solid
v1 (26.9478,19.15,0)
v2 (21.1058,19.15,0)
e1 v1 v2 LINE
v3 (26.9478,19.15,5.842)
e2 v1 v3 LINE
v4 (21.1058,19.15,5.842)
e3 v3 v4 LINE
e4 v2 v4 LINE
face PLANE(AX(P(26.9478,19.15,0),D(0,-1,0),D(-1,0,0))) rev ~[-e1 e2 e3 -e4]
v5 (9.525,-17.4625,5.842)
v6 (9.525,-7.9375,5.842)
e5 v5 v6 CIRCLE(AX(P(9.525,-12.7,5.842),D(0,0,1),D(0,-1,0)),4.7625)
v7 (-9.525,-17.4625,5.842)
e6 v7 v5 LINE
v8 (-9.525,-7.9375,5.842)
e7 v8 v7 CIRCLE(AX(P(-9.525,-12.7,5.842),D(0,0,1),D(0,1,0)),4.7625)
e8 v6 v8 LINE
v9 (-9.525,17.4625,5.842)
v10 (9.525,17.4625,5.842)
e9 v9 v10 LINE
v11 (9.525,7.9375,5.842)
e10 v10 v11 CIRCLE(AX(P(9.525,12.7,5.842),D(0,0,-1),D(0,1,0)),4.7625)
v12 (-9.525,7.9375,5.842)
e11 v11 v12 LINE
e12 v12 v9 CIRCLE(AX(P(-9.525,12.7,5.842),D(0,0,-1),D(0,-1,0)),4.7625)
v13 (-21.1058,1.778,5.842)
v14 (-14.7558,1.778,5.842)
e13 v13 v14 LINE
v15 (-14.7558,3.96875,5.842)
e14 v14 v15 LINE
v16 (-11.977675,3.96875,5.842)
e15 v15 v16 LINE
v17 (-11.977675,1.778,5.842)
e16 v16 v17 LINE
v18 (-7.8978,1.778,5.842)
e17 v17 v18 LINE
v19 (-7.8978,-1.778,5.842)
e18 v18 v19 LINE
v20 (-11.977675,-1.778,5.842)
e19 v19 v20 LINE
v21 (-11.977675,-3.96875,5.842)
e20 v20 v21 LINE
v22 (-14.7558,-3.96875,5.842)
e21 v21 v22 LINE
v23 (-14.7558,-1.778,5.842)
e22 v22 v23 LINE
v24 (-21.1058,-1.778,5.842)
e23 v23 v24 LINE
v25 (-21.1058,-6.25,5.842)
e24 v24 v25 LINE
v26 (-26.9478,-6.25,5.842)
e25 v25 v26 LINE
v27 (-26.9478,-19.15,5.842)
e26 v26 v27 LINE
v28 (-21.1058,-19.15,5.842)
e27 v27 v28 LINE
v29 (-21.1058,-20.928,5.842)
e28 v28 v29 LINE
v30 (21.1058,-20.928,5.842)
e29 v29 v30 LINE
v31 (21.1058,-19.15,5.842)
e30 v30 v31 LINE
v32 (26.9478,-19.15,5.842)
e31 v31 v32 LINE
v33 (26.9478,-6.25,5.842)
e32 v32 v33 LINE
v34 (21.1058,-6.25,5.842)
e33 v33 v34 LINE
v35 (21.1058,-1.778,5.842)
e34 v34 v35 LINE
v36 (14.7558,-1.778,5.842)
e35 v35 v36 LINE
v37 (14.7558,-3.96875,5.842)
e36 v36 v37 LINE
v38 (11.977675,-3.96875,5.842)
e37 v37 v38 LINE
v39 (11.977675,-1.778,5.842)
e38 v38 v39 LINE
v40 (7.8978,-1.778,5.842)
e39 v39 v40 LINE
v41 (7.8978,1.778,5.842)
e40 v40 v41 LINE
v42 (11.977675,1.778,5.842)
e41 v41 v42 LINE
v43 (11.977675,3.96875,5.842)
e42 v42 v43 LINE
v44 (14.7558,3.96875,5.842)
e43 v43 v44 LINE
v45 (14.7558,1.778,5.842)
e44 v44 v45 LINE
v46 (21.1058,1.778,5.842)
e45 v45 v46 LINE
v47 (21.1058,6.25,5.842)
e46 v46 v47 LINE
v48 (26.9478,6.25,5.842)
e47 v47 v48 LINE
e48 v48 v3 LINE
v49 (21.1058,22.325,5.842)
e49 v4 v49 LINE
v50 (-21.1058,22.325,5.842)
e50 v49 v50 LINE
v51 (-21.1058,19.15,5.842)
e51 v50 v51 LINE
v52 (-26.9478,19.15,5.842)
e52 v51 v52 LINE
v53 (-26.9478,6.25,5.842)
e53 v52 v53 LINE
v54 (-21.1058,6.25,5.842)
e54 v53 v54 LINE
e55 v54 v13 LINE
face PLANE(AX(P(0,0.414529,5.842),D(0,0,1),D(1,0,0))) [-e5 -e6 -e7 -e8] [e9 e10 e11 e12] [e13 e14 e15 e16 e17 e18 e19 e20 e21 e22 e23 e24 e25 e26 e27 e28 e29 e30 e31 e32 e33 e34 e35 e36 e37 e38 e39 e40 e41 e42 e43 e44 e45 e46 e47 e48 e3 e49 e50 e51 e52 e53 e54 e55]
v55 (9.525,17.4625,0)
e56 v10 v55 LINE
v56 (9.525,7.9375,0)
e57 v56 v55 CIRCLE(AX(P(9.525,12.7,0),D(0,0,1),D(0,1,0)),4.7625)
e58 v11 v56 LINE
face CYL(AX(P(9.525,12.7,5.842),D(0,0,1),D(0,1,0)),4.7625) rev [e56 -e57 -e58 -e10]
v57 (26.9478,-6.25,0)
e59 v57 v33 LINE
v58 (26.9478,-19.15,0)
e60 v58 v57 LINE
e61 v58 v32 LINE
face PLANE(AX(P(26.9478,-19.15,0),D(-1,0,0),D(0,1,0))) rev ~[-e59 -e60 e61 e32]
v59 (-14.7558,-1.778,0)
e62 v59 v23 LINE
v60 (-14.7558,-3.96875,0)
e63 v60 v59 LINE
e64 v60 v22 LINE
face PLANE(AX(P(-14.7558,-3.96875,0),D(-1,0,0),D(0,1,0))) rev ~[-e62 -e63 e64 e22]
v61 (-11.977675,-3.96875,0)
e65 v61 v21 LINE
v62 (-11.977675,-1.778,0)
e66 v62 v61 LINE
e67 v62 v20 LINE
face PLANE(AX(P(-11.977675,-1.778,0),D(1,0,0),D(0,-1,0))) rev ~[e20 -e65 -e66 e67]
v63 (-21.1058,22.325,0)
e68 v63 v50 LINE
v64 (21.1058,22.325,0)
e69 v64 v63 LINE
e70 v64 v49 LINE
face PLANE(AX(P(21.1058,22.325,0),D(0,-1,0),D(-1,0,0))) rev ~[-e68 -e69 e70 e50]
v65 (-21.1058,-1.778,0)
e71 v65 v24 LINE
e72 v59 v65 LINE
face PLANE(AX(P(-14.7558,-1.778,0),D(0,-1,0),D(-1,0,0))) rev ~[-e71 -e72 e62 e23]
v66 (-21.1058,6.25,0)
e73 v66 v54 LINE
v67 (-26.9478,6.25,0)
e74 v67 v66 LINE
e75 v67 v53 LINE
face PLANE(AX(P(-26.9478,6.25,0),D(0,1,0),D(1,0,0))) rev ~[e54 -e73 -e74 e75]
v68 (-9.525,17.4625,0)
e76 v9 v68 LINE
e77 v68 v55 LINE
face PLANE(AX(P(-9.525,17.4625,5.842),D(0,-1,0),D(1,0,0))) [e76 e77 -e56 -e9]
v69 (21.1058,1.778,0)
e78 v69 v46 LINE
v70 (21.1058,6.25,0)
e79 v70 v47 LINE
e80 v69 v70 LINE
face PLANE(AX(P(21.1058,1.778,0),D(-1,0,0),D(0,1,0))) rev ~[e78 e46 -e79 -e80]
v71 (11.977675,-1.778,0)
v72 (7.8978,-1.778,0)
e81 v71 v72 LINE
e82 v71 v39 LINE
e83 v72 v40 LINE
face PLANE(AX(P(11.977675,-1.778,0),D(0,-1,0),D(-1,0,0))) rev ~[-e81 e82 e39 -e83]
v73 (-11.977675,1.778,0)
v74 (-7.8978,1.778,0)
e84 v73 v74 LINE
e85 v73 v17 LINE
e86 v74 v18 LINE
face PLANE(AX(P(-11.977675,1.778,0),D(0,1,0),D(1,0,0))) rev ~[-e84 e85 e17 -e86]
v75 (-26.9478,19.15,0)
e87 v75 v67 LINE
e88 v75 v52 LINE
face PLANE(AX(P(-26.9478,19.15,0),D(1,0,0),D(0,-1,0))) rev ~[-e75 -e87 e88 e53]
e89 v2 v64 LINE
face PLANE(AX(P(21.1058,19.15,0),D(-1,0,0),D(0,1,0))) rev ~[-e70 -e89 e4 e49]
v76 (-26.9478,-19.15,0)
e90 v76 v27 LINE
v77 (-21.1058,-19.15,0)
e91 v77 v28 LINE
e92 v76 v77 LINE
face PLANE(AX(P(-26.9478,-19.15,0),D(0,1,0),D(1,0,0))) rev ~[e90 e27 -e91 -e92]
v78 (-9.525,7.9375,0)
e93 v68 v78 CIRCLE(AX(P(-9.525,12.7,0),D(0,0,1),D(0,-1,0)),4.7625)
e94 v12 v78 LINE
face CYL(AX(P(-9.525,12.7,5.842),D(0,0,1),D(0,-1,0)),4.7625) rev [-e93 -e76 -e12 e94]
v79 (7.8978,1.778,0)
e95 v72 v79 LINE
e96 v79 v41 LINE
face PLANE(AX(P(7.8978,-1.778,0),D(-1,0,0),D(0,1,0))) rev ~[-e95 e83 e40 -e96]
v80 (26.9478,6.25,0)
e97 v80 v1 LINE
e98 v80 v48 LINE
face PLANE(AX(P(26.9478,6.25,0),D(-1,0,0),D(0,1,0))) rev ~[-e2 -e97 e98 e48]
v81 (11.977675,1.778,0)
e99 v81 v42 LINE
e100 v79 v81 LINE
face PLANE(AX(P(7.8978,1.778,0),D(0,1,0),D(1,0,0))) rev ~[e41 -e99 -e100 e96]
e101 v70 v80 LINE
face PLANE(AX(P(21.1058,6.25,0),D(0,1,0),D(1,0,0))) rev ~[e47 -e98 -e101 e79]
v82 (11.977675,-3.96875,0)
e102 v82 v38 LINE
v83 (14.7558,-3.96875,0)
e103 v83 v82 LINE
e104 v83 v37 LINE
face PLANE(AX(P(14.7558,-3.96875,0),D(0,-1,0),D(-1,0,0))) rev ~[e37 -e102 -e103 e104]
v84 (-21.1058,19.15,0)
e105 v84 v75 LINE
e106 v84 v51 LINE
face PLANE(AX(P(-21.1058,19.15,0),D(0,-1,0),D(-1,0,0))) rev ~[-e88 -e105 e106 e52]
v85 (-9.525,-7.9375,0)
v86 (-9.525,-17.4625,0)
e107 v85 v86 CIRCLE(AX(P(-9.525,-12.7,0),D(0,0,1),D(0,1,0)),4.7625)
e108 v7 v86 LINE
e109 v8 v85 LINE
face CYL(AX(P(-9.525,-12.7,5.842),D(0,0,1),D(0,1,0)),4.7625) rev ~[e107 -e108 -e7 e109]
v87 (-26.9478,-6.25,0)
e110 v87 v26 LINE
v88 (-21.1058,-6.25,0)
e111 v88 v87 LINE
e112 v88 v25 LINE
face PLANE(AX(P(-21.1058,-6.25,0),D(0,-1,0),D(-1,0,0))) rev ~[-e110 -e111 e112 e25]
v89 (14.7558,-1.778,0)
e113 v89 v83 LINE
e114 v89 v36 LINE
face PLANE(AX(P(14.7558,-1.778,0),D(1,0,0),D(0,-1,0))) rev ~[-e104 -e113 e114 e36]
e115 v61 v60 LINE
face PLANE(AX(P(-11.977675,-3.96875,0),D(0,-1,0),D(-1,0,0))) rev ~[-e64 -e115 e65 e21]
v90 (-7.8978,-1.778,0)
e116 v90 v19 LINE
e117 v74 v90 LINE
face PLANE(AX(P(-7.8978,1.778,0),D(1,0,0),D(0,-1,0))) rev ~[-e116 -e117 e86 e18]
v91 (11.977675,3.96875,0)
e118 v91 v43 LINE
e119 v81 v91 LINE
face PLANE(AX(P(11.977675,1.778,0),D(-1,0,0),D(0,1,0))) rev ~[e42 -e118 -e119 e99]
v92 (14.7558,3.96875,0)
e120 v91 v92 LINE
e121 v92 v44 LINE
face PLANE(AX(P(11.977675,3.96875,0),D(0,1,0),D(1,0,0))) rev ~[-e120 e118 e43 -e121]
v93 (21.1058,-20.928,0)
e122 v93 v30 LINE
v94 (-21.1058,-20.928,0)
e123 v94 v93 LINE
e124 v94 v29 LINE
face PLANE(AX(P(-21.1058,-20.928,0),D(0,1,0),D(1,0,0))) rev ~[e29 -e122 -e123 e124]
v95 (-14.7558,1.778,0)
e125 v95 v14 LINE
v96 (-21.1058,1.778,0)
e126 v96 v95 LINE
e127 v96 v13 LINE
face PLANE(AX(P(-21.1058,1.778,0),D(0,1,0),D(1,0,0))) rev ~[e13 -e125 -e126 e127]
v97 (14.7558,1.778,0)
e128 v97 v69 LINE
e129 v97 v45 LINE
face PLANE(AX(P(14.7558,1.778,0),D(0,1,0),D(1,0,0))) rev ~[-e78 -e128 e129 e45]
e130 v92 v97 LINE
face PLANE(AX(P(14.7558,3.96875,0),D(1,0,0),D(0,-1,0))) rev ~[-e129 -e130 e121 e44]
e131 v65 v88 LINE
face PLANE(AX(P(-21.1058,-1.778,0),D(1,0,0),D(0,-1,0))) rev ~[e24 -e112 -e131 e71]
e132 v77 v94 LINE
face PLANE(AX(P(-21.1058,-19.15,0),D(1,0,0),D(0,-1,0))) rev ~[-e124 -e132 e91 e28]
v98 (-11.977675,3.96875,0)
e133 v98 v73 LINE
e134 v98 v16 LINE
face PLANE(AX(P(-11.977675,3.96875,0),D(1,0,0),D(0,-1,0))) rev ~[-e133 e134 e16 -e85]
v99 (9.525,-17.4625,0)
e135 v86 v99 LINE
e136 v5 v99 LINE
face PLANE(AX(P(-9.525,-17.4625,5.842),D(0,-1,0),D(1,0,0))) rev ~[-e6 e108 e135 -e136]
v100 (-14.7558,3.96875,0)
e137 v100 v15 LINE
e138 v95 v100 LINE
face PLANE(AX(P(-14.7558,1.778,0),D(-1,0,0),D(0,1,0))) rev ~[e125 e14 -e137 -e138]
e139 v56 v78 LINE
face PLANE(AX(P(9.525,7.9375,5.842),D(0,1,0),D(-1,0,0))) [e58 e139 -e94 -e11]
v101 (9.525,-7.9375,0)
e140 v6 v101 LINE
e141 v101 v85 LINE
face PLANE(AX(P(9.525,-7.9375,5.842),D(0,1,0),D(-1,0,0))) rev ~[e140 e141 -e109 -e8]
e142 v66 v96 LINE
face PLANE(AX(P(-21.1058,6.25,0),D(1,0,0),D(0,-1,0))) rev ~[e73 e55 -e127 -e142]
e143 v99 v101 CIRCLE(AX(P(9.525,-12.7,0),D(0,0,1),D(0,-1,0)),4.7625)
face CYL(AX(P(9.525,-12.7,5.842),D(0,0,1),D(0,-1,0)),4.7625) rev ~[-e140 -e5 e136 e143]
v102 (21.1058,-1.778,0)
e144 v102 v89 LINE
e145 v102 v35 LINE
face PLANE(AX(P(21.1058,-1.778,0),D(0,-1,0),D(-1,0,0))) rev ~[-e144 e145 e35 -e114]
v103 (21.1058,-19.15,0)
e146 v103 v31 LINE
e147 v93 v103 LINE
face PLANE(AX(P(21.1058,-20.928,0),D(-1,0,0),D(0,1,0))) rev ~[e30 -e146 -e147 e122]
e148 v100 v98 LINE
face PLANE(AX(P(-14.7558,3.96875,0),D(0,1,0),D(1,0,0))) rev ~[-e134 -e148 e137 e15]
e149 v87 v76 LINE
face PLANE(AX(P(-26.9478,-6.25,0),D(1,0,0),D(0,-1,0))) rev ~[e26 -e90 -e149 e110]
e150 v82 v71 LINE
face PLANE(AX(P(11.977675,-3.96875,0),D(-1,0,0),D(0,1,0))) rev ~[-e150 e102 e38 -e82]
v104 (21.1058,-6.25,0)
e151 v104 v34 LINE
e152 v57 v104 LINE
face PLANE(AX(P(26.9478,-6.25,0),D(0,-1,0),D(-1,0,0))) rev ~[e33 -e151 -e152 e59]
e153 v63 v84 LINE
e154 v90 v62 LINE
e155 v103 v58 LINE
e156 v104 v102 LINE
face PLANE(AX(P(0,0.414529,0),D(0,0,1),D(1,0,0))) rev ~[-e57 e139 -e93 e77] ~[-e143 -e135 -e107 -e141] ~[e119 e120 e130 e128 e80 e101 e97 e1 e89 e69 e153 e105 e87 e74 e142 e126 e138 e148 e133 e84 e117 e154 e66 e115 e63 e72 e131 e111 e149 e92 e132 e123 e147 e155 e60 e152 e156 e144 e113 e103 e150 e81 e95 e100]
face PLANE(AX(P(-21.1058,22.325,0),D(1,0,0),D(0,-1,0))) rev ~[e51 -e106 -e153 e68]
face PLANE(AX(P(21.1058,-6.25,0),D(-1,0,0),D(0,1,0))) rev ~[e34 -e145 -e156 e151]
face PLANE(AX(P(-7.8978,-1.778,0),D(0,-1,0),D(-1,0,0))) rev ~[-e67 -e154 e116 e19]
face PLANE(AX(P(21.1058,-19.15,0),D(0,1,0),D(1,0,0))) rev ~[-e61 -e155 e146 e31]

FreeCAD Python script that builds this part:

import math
import FreeCAD as App
import Part
import Sketcher

V = App.Vector
Q = App.Units.Quantity


def add_polygon(sketch, points):
    """Adds a closed chain of lines whose ends are joined by coincident constraints."""
    first, n = sketch.GeometryCount, len(points)
    for a, b in zip(points, points[1:] + points[:1]):
        sketch.addGeometry(Part.LineSegment(App.Vector(*a, 0), App.Vector(*b, 0)), False)
    for i in range(n):
        sketch.addConstraint(Sketcher.Constraint("Coincident", first + i, 2, first + (i + 1) % n, 1))

doc = App.newDocument("Part")
body = doc.addObject("PartDesign::Body", "Body")

sketch1 = doc.addObject("Sketcher::SketchObject", "Sketch")
body.addObject(sketch1)
sketch1.AttachmentSupport = (doc.XY_Plane, [""])
sketch1.MapMode = "FlatFace"
add_polygon(sketch1, [(21.1, -20.9), (21.1, -19.1), (26.9, -19.1), (26.9, -6.2), (21.1, -6.2), (21.1, -1.8), (14.8, -1.8), (14.8, -4), (12, -4), (12, -1.8), (7.9, -1.8), (7.9, 1.8), (12, 1.8), (12, 4), (14.8, 4), (14.8, 1.8), (21.1, 1.8), (21.1, 6.2), (26.9, 6.2), (26.9, 19.1), (21.1, 19.1), (21.1, 22.3), (-21.1, 22.3), (-21.1, 19.1), (-26.9, 19.1), (-26.9, 6.2), (-21.1, 6.2), (-21.1, 1.8), (-14.8, 1.8), (-14.8, 4), (-12, 4), (-12, 1.8), (-7.9, 1.8), (-7.9, -1.8), (-12, -1.8), (-12, -4), (-14.8, -4), (-14.8, -1.8), (-21.1, -1.8), (-21.1, -6.2), (-26.9, -6.2), (-26.9, -19.1), (-21.1, -19.1), (-21.1, -20.9)])
sketch1.addConstraint([
    Sketcher.Constraint("Vertical", 0),
    Sketcher.Constraint("Horizontal", 1),
    Sketcher.Constraint("Vertical", 2),
    Sketcher.Constraint("Horizontal", 3),
    Sketcher.Constraint("Vertical", 4),
    Sketcher.Constraint("Horizontal", 5),
    Sketcher.Constraint("Vertical", 6),
    Sketcher.Constraint("Horizontal", 7),
    Sketcher.Constraint("Vertical", 8),
    Sketcher.Constraint("Horizontal", 9),
    Sketcher.Constraint("Vertical", 10),
    Sketcher.Constraint("Horizontal", 11),
    Sketcher.Constraint("Vertical", 12),
    Sketcher.Constraint("Horizontal", 13),
    Sketcher.Constraint("Vertical", 14),
    Sketcher.Constraint("Horizontal", 15),
    Sketcher.Constraint("Vertical", 16),
    Sketcher.Constraint("Horizontal", 17),
    Sketcher.Constraint("Vertical", 18),
    Sketcher.Constraint("Horizontal", 19),
    Sketcher.Constraint("Vertical", 20),
    Sketcher.Constraint("Horizontal", 21),
    Sketcher.Constraint("Vertical", 22),
    Sketcher.Constraint("Horizontal", 23),
    Sketcher.Constraint("Vertical", 24),
    Sketcher.Constraint("Horizontal", 25),
    Sketcher.Constraint("Vertical", 26),
    Sketcher.Constraint("Horizontal", 27),
    Sketcher.Constraint("Vertical", 28),
    Sketcher.Constraint("Horizontal", 29),
    Sketcher.Constraint("Vertical", 30),
    Sketcher.Constraint("Horizontal", 31),
    Sketcher.Constraint("Vertical", 32),
    Sketcher.Constraint("Horizontal", 33),
    Sketcher.Constraint("Vertical", 34),
    Sketcher.Constraint("Horizontal", 35),
    Sketcher.Constraint("Vertical", 36),
    Sketcher.Constraint("Horizontal", 37),
    Sketcher.Constraint("Vertical", 38),
    Sketcher.Constraint("Horizontal", 39),
    Sketcher.Constraint("Vertical", 40),
    Sketcher.Constraint("Horizontal", 41),
    Sketcher.Constraint("Vertical", 42),
    Sketcher.Constraint("Horizontal", 43),
    Sketcher.Constraint("Symmetric", 0, 2, 22, 2, -1, 1),
    Sketcher.Constraint("Symmetric", 2, 2, 24, 2, -1, 1),
    Sketcher.Constraint("Symmetric", 4, 2, 26, 2, -1, 1),
    Sketcher.Constraint("Symmetric", 6, 2, 28, 2, -1, 1),
    Sketcher.Constraint("Symmetric", 8, 2, 30, 2, -1, 1),
    Sketcher.Constraint("Symmetric", 10, 2, 32, 2, -1, 1),
    Sketcher.Constraint("Symmetric", 12, 2, 34, 2, -1, 1),
    Sketcher.Constraint("Symmetric", 14, 2, 36, 2, -1, 1),
    Sketcher.Constraint("Symmetric", 16, 2, 38, 2, -1, 1),
    Sketcher.Constraint("Symmetric", 18, 2, 40, 2, -1, 1),
    Sketcher.Constraint("Symmetric", 19, 2, 22, 2, -2),
    Sketcher.Constraint("Symmetric", 17, 2, 24, 2, -2),
    Sketcher.Constraint("Symmetric", 15, 2, 26, 2, -2),
    Sketcher.Constraint("Symmetric", 13, 2, 28, 2, -2),
    Sketcher.Constraint("Symmetric", 11, 2, 30, 2, -2),
    Sketcher.Constraint("Horizontal", 5, 2, 8, 2),
    Sketcher.Constraint("Vertical", 0, 2, 3, 2),
    Sketcher.Constraint("Vertical", 38, 2, 41, 2),
    Sketcher.Constraint("DistanceX", 1, 1, 1, 2, Q("0.23 in")),
    Sketcher.Constraint("DistanceX", 5, 2, 5, 1, Q("0.25 in")),
    Sketcher.Constraint("DistanceY", 0, 1, 0, 2, Q("0.07 in")),
    Sketcher.Constraint("DistanceY", 10, 1, 10, 2, Q("0.14 in")),
    Sketcher.Constraint("DistanceX", 7, 2, 7, 1, Q("0.109375 in")),
    Sketcher.Constraint("DistanceY", 20, 1, 20, 2, Q("0.125 in")),
    Sketcher.Constraint("DistanceX", 9, 2, 5, 2, Q("0.27 in")),
    Sketcher.Constraint("DistanceY", 6, 2, -1, 1, Q("0.15625 in")),
    Sketcher.Constraint("DistanceX", 21, 2, 21, 1, 42.2116),
    Sketcher.Constraint("DistanceY", 2, 1, 2, 2, 12.9),
    Sketcher.Constraint("DistanceY", 4, 1, 4, 2, 4.472),
])
pad1 = doc.addObject("PartDesign::Pad", "Pad")
body.addObject(pad1)
pad1.Profile = sketch1
pad1.Length = Q("0.23 in")

sketch2 = doc.addObject("Sketcher::SketchObject", "Sketch001")
body.addObject(sketch2)
sketch2.AttachmentSupport = (doc.XY_Plane, [""])
sketch2.MapMode = "FlatFace"
sketch2.AttachmentOffset = App.Placement(V(0, 0, 0.23 * 25.4), App.Rotation())
sketch2.addGeometry([
    Part.LineSegment(V(9.5, 17.5, 0), V(-9.5, 17.5, 0)),
    Part.ArcOfCircle(Part.Circle(V(-9.5, 12.7, 0), V(0, 0, 1), 4.8), math.radians(90), math.radians(270)),
    Part.LineSegment(V(-9.5, 7.9, 0), V(9.5, 7.9, 0)),
    Part.ArcOfCircle(Part.Circle(V(9.5, 12.7, 0), V(0, 0, 1), 4.8), math.radians(-90), math.radians(90)),
    Part.LineSegment(V(-9.5, -17.5, 0), V(9.5, -17.5, 0)),
    Part.ArcOfCircle(Part.Circle(V(9.5, -12.7, 0), V(0, 0, 1), 4.8), math.radians(-90), math.radians(90)),
    Part.LineSegment(V(9.5, -7.9, 0), V(-9.5, -7.9, 0)),
    Part.ArcOfCircle(Part.Circle(V(-9.5, -12.7, 0), V(0, 0, 1), 4.8), math.radians(90), math.radians(270)),
], False)
sketch2.addConstraint([
    Sketcher.Constraint("Tangent", 0, 2, 1, 1),
    Sketcher.Constraint("Tangent", 1, 2, 2, 1),
    Sketcher.Constraint("Tangent", 2, 2, 3, 1),
    Sketcher.Constraint("Tangent", 3, 2, 0, 1),
    Sketcher.Constraint("Tangent", 4, 2, 5, 1),
    Sketcher.Constraint("Tangent", 5, 2, 6, 1),
    Sketcher.Constraint("Tangent", 6, 2, 7, 1),
    Sketcher.Constraint("Tangent", 7, 2, 4, 1),
    Sketcher.Constraint("Horizontal", 0),
    Sketcher.Constraint("Horizontal", 2),
    Sketcher.Constraint("Horizontal", 4),
    Sketcher.Constraint("Horizontal", 6),
    Sketcher.Constraint("Equal", 3, 5),
    Sketcher.Constraint("Symmetric", 1, 3, 5, 3, -1, 1),
    Sketcher.Constraint("Vertical", 3, 3, 5, 3),
    Sketcher.Constraint("Vertical", 1, 3, 7, 3),
    Sketcher.Constraint("Radius", 1, Q("0.1875 in")),
    Sketcher.Constraint("DistanceY", 5, 3, 3, 3, Q("1 in")),
    Sketcher.Constraint("DistanceX", 0, 2, 0, 1, Q("0.75 in")),
])
pocket1 = doc.addObject("PartDesign::Pocket", "Pocket")
body.addObject(pocket1)
pocket1.Profile = sketch2
pocket1.Type = "ThroughAll"

doc.recompute()
